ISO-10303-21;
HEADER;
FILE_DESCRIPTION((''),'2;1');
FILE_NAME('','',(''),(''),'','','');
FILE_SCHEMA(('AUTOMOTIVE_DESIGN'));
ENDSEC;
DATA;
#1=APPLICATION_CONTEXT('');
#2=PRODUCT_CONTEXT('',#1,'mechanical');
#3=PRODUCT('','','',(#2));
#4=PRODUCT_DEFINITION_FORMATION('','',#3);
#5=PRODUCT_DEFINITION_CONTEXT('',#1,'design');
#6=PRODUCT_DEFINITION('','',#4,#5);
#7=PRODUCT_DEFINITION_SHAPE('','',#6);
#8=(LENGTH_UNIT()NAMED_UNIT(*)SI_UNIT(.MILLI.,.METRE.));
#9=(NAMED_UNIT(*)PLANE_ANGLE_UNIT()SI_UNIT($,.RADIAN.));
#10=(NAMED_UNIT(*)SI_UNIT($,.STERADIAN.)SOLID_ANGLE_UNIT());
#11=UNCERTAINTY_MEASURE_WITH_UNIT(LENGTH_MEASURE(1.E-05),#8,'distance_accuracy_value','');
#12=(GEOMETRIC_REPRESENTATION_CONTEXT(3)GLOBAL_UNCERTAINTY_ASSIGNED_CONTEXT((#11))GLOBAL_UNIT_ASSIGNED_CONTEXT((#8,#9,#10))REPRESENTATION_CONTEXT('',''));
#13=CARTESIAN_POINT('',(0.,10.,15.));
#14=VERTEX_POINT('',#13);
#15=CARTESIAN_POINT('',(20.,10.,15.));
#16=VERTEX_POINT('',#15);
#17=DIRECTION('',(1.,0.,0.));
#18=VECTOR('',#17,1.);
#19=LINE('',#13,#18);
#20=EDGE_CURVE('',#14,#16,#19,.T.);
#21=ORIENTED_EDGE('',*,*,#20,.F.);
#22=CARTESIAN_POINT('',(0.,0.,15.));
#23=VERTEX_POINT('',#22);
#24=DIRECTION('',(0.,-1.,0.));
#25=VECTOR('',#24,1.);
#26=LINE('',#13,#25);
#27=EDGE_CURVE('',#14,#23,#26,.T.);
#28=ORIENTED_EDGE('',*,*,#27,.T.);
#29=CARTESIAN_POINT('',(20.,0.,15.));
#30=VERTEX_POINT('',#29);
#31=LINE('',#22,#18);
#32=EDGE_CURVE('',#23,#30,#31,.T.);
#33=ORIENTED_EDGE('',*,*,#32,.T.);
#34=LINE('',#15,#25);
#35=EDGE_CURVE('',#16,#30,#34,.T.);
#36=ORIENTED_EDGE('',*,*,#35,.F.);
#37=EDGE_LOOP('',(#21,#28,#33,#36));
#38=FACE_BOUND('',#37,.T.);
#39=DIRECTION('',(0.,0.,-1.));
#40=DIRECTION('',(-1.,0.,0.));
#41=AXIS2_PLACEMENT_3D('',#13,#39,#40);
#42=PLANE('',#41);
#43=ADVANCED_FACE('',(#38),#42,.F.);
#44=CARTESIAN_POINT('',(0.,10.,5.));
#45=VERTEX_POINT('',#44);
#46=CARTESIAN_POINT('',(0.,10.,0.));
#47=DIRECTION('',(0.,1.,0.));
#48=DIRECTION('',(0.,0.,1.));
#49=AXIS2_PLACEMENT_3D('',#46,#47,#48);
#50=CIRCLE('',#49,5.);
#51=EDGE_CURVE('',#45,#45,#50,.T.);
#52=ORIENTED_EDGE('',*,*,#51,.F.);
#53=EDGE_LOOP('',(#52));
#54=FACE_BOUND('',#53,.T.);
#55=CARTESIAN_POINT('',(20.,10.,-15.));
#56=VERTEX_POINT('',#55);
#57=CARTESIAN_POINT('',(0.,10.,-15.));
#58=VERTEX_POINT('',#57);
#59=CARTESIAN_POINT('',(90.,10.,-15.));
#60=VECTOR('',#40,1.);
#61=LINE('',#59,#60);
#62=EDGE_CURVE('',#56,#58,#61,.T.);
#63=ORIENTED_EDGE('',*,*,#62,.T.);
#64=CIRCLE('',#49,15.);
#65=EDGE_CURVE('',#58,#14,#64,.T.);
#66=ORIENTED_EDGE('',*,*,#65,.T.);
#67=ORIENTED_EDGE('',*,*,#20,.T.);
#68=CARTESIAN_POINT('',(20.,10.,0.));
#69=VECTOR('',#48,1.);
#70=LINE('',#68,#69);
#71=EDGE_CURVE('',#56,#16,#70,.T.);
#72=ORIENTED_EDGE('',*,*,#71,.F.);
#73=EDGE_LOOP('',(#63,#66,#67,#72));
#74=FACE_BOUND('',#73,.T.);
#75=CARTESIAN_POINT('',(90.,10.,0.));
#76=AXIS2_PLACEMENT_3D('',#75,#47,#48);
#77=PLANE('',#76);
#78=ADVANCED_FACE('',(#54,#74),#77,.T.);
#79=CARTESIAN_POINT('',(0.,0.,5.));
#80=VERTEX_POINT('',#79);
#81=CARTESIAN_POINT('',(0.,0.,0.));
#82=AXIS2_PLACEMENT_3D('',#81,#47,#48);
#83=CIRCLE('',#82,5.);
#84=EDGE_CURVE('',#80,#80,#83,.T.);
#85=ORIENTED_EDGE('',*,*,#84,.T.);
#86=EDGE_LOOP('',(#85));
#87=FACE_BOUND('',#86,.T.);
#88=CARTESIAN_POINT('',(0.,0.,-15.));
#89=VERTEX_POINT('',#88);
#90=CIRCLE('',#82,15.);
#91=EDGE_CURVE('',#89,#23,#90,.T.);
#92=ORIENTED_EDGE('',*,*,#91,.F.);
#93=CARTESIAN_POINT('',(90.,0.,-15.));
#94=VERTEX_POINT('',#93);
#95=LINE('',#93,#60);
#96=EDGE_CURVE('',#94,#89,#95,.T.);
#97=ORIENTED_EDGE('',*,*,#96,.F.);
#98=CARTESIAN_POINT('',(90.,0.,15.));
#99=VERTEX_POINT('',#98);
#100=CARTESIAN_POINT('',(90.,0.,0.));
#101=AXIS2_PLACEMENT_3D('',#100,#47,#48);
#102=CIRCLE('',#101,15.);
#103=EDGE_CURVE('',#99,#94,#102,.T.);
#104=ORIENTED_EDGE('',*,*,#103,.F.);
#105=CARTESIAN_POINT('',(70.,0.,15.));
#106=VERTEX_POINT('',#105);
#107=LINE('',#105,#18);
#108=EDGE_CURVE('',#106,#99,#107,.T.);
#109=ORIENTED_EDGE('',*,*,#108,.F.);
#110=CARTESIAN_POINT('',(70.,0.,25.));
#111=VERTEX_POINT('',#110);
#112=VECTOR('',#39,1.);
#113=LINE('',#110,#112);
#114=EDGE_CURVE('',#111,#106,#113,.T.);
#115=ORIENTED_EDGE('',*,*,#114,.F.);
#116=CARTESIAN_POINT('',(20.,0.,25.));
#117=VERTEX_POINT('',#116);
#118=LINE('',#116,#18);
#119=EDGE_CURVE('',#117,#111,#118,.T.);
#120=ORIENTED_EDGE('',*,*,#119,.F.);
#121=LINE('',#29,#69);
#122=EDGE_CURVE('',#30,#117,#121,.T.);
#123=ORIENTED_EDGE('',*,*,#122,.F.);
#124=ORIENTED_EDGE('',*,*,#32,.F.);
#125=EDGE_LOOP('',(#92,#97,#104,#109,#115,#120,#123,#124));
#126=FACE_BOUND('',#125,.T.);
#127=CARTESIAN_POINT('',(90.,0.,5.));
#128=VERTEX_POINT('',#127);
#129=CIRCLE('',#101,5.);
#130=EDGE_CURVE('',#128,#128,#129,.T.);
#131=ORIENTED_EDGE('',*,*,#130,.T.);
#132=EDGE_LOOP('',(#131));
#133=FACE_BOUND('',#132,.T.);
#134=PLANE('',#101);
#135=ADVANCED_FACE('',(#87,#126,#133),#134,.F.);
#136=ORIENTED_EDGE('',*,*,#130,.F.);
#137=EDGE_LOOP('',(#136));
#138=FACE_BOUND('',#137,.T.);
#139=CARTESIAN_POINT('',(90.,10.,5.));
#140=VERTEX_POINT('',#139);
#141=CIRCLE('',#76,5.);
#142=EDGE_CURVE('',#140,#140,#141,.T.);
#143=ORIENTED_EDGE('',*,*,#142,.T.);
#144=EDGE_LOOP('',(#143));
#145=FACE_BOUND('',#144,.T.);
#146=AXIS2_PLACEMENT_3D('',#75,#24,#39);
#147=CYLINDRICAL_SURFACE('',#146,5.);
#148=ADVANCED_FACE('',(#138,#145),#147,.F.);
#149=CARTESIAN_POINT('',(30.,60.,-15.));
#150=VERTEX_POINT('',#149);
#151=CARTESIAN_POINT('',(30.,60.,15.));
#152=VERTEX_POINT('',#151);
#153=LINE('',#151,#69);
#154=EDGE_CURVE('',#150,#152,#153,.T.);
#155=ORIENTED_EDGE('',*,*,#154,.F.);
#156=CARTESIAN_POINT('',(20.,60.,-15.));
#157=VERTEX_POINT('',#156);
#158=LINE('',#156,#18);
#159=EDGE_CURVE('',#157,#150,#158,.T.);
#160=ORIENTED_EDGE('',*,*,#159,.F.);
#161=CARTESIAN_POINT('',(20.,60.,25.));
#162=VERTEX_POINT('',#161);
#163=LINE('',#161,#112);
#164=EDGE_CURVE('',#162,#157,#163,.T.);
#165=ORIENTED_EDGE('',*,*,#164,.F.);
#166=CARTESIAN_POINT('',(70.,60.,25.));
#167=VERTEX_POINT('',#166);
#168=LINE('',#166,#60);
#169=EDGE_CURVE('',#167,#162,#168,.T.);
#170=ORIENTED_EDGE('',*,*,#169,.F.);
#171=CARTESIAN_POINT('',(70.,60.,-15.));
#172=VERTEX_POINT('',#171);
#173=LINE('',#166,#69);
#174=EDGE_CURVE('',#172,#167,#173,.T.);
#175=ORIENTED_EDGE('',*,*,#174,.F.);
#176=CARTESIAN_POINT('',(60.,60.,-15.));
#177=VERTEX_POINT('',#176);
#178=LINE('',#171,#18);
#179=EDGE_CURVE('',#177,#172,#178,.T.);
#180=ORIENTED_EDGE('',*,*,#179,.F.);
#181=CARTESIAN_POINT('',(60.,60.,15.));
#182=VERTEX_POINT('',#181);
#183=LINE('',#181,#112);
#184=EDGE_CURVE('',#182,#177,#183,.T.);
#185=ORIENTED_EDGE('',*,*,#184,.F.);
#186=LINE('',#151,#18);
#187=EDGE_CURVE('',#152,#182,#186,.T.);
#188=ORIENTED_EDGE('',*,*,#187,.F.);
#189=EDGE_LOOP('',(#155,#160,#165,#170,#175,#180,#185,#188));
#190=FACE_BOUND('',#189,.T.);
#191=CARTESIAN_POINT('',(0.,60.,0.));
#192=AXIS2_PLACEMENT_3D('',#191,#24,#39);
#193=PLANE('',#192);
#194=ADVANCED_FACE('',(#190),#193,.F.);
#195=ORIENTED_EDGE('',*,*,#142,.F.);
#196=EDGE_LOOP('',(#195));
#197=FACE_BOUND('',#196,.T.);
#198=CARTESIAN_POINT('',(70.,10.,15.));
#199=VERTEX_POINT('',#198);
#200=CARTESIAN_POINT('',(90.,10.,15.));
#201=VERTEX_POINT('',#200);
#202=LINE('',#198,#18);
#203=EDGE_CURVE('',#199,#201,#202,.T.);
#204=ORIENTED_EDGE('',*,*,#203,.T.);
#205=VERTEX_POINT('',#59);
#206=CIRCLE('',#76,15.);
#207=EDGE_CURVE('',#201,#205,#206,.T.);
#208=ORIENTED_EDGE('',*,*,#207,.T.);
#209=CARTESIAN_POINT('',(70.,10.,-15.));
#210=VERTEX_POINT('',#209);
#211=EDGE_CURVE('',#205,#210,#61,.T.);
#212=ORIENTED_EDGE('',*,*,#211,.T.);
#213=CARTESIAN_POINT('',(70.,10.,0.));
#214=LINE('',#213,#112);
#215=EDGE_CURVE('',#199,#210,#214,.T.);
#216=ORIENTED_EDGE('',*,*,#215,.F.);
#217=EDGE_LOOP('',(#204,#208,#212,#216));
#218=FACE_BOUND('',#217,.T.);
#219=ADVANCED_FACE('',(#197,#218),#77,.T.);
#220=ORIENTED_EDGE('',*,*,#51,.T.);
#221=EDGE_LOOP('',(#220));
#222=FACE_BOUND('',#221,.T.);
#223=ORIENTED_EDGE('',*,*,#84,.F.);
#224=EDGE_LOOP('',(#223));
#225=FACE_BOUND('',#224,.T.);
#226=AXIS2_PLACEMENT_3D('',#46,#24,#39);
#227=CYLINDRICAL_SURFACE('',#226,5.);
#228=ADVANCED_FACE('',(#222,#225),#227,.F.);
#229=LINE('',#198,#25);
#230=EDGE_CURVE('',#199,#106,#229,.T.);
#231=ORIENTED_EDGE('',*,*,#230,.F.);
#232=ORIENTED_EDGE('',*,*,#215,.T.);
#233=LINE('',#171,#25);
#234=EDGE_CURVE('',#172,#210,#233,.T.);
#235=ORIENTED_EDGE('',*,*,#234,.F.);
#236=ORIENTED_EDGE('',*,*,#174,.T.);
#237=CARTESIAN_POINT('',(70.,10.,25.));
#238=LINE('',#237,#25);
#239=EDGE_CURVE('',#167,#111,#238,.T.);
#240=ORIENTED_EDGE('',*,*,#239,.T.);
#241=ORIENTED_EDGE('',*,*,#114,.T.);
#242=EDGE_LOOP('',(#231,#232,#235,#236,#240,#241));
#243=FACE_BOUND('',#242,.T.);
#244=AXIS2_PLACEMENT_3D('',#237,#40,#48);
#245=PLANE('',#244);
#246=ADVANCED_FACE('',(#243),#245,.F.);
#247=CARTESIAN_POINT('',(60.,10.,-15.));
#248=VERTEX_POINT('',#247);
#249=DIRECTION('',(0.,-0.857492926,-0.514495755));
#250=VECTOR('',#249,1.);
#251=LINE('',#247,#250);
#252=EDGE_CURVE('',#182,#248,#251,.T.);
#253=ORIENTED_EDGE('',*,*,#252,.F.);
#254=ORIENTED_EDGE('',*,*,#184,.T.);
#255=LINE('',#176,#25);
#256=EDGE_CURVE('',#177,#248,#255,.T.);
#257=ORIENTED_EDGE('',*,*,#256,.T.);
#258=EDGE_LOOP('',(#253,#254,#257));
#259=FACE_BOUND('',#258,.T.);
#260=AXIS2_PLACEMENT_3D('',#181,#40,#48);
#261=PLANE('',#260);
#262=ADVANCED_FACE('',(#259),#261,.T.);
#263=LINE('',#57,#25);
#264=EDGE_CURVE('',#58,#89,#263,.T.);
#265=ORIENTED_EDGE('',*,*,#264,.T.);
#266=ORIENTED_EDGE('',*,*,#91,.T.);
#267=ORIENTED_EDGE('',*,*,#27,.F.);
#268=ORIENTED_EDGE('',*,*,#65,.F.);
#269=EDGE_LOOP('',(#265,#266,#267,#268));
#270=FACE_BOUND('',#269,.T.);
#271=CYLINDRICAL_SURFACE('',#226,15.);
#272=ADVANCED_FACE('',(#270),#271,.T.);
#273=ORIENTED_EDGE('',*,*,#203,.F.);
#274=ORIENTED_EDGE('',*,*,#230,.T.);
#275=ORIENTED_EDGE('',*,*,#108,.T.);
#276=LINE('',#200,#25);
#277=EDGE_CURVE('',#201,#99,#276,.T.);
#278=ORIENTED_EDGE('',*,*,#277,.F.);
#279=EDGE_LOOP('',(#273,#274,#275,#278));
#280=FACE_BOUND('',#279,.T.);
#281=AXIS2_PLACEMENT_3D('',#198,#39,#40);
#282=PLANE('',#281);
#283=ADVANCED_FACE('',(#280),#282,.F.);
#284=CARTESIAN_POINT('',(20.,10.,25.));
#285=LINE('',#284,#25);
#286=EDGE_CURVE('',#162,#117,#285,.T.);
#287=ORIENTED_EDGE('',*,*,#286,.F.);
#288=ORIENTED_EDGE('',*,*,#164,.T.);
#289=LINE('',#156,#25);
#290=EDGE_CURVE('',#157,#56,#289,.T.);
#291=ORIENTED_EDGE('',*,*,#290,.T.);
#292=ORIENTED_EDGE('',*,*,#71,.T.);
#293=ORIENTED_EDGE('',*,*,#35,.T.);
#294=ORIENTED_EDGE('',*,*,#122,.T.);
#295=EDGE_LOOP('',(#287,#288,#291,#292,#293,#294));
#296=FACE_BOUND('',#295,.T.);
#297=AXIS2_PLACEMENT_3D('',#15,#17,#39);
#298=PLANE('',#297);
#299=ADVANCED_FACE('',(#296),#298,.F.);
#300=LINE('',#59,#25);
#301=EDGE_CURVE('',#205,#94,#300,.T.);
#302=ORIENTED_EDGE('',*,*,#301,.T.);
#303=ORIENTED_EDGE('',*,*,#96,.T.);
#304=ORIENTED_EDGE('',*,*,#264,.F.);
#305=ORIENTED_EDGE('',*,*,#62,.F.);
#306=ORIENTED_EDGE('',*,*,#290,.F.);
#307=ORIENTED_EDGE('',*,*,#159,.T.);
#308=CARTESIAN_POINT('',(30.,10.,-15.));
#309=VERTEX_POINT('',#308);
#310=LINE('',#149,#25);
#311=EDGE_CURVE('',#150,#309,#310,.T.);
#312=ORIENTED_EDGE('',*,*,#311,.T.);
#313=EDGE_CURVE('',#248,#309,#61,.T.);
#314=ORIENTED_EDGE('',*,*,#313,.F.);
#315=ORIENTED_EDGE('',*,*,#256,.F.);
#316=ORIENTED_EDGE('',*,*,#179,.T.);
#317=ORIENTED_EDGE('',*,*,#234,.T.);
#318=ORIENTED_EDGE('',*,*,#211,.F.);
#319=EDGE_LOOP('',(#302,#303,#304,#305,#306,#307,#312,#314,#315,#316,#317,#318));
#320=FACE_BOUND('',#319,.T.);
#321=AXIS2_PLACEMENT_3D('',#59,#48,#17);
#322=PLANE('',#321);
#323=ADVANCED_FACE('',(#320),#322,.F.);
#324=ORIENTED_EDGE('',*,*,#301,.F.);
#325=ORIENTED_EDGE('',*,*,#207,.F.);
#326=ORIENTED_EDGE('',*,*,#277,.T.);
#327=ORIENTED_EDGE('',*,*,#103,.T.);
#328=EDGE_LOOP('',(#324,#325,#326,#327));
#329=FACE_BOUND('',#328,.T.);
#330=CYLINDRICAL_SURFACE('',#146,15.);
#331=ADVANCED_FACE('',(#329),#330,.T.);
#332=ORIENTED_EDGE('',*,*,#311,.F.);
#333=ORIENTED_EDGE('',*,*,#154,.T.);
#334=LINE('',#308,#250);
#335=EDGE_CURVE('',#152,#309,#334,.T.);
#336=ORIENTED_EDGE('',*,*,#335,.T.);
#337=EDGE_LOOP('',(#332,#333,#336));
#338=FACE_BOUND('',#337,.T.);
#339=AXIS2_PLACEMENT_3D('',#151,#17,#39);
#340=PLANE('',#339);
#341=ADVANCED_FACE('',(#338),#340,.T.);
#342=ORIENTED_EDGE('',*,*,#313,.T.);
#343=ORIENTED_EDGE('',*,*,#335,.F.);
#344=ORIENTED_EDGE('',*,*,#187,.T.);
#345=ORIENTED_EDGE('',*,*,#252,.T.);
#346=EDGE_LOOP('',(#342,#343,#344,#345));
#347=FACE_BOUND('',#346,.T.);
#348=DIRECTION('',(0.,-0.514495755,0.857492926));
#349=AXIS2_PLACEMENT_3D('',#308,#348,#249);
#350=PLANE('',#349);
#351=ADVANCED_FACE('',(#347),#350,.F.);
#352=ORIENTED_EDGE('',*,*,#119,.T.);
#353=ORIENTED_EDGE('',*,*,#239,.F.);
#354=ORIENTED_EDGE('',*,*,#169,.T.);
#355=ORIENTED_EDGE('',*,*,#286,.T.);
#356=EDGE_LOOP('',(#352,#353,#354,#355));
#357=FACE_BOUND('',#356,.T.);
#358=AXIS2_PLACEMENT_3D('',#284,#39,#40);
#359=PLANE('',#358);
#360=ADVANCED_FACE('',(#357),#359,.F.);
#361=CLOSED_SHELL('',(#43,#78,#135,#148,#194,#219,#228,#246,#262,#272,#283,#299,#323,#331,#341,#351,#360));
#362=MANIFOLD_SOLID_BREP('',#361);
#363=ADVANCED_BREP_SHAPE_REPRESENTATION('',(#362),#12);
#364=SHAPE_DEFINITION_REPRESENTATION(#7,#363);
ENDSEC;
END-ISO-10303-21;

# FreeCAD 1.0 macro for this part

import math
import FreeCAD as App
import Part
import Sketcher

V = App.Vector


def add_polygon(sketch, points):
    """Adds a closed chain of lines whose ends are joined by coincident constraints."""
    first, n = sketch.GeometryCount, len(points)
    for a, b in zip(points, points[1:] + points[:1]):
        sketch.addGeometry(Part.LineSegment(App.Vector(*a, 0), App.Vector(*b, 0)), False)
    for i in range(n):
        sketch.addConstraint(Sketcher.Constraint("Coincident", first + i, 2, first + (i + 1) % n, 1))

doc = App.newDocument("Part")
body = doc.addObject("PartDesign::Body", "Body")

sketch1 = body.newObject("Sketcher::SketchObject", "Sketch")
sketch1.AttachmentSupport = (doc.getObject("XZ_Plane"), [""])
sketch1.MapMode = "FlatFace"
sketch1.addGeometry([
    Part.LineSegment(V(0, 15, 0), V(20, 15, 0)),
    Part.LineSegment(V(20, 15, 0), V(20, 25, 0)),
    Part.LineSegment(V(20, 25, 0), V(70, 25, 0)),
    Part.LineSegment(V(70, 25, 0), V(70, 15, 0)),
    Part.LineSegment(V(70, 15, 0), V(90, 15, 0)),
    Part.ArcOfCircle(Part.Circle(V(90, 0, 0), V(0, 0, 1), 15), math.radians(-90), math.radians(90)),
    Part.LineSegment(V(90, -15, 0), V(0, -15, 0)),
    Part.ArcOfCircle(Part.Circle(V(0, 0, 0), V(0, 0, 1), 15), math.radians(90), math.radians(270)),
    Part.Circle(V(0, 0, 0), V(0, 0, 1), 5),
    Part.Circle(V(90, 0, 0), V(0, 0, 1), 5),
], False)
sketch1.addConstraint([
    Sketcher.Constraint("Coincident", 0, 2, 1, 1),
    Sketcher.Constraint("Coincident", 1, 2, 2, 1),
    Sketcher.Constraint("Coincident", 2, 2, 3, 1),
    Sketcher.Constraint("Coincident", 3, 2, 4, 1),
    Sketcher.Constraint("Tangent", 4, 2, 5, 2),
    Sketcher.Constraint("Tangent", 5, 1, 6, 1),
    Sketcher.Constraint("Tangent", 6, 2, 7, 2),
    Sketcher.Constraint("Tangent", 7, 1, 0, 1),
    Sketcher.Constraint("Horizontal", 0),
    Sketcher.Constraint("Vertical", 1),
    Sketcher.Constraint("Horizontal", 2),
    Sketcher.Constraint("Vertical", 3),
    Sketcher.Constraint("Horizontal", 4),
    Sketcher.Constraint("Horizontal", 6),
    Sketcher.Constraint("Coincident", 7, 3, -1, 1),
    Sketcher.Constraint("Coincident", 8, 3, -1, 1),
    Sketcher.Constraint("Coincident", 9, 3, 5, 3),
    Sketcher.Constraint("Equal", 5, 7),
    Sketcher.Constraint("Equal", 8, 9),
    Sketcher.Constraint("Equal", 0, 4),
    Sketcher.Constraint("Diameter", 8, 10.0),
    Sketcher.Constraint("Radius", 5, 15.0),
    Sketcher.Constraint("DistanceX", 0, 1, 0, 2, 20.0),
    Sketcher.Constraint("DistanceX", 2, 1, 2, 2, 50.0),
    Sketcher.Constraint("DistanceY", 1, 1, 1, 2, 10.0),
])
pad1 = body.newObject("PartDesign::Pad", "Pad")
pad1.Profile = sketch1
pad1.Length = 10
pad1.Reversed = True

sketch2 = body.newObject("Sketcher::SketchObject", "Sketch001")
sketch2.AttachmentSupport = (doc.getObject("XZ_Plane"), [""])
sketch2.MapMode = "FlatFace"
add_polygon(sketch2, [(20, -15), (30, -15), (30, 15), (60, 15), (60, -15), (70, -15), (70, 25), (20, 25)])
sketch2.addConstraint([
    Sketcher.Constraint("Horizontal", 0),
    Sketcher.Constraint("Vertical", 1),
    Sketcher.Constraint("Horizontal", 2),
    Sketcher.Constraint("Vertical", 3),
    Sketcher.Constraint("Horizontal", 4),
    Sketcher.Constraint("Vertical", 5),
    Sketcher.Constraint("Horizontal", 6),
    Sketcher.Constraint("Vertical", 7),
    Sketcher.Constraint("Horizontal", 0, 2, 3, 2),
    Sketcher.Constraint("Equal", 0, 4),
    Sketcher.Constraint("Equal", 2, 1),
    Sketcher.Constraint("DistanceX", 0, 1, 0, 2, 10.0),
    Sketcher.Constraint("DistanceX", 2, 1, 2, 2, 30.0),
    Sketcher.Constraint("DistanceY", 5, 1, 5, 2, 40.0),
    Sketcher.Constraint("DistanceX", -1, 1, 0, 2, 30.0),
    Sketcher.Constraint("DistanceY", 0, 2, -1, 1, 15.0),
])
pad2 = body.newObject("PartDesign::Pad", "Pad001")
pad2.Profile = sketch2
pad2.Length = 60
pad2.Reversed = True

sketch3 = body.newObject("Sketcher::SketchObject", "Sketch002")
sketch3.AttachmentSupport = (doc.getObject("YZ_Plane"), [""])
sketch3.MapMode = "FlatFace"
sketch3.AttachmentOffset = App.Placement(V(0, 0, 60), App.Rotation())
add_polygon(sketch3, [(60, 15), (10, -15), (10, 15)])
sketch3.addConstraint([
    Sketcher.Constraint("Vertical", 1),
    Sketcher.Constraint("Horizontal", 2),
    Sketcher.Constraint("DistanceX", 2, 1, 2, 2, 50.0),
    Sketcher.Constraint("DistanceY", 1, 1, 1, 2, 30.0),
    Sketcher.Constraint("DistanceX", -1, 1, 0, 2, 10.0),
    Sketcher.Constraint("DistanceY", 0, 2, -1, 1, 15.0),
])
pad3 = body.newObject("PartDesign::Pad", "Pad002")
pad3.Profile = sketch3
pad3.Length = 30
pad3.Reversed = True

doc.recompute()
